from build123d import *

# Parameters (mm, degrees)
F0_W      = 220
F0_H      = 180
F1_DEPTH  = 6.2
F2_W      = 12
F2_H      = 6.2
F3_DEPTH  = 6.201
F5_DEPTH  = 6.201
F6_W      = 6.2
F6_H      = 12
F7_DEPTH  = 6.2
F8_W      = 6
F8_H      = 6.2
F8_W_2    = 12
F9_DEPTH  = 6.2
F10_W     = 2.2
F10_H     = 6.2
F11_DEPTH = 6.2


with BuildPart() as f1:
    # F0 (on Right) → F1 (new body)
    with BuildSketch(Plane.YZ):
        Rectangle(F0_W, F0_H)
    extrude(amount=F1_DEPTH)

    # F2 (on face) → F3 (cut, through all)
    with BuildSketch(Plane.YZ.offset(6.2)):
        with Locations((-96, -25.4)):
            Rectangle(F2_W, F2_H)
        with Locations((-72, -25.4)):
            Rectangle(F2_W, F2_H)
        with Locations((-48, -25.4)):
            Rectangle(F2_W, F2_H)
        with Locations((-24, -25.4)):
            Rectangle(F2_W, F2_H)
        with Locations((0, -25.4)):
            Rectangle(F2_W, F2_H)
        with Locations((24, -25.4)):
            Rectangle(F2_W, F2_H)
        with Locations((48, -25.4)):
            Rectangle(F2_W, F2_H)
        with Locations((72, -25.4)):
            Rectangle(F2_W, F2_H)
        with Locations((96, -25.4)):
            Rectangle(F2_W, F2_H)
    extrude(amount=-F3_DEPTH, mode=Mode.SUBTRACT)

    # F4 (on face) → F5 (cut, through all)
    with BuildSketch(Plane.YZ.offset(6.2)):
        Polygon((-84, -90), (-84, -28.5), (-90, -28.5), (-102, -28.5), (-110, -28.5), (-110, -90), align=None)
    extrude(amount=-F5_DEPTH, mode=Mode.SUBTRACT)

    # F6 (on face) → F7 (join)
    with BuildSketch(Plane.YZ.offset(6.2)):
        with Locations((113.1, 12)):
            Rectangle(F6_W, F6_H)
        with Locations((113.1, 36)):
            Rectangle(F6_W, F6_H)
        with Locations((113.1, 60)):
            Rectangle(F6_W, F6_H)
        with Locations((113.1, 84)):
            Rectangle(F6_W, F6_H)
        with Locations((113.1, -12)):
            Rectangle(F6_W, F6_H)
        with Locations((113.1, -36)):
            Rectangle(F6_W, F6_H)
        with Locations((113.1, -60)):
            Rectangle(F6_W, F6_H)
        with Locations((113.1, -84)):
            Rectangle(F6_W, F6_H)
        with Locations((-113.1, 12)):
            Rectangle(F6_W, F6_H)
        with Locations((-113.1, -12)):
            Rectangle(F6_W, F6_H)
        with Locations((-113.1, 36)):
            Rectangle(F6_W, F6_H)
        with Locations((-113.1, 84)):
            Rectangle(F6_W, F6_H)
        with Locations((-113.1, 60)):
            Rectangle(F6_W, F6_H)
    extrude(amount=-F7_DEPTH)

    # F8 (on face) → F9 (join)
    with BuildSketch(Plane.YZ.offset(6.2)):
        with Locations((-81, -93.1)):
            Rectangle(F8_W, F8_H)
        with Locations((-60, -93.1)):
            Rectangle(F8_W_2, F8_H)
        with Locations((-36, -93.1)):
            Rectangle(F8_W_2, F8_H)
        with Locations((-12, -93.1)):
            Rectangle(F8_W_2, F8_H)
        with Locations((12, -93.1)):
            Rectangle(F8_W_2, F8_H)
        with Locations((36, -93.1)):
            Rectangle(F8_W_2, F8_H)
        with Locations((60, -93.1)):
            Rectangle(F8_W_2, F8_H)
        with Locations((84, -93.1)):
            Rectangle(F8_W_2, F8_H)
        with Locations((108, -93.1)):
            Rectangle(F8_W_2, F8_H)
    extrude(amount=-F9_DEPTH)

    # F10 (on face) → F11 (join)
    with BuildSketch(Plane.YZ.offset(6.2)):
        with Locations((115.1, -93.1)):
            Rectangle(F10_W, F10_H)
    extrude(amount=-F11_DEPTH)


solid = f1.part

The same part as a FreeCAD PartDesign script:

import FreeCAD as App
import Part
import Sketcher
from FreeCAD import Vector


def add_polygon(sketch, points):
    """Adds a closed chain of lines whose ends are joined by coincident constraints."""
    first, n = sketch.GeometryCount, len(points)
    for a, b in zip(points, points[1:] + points[:1]):
        sketch.addGeometry(Part.LineSegment(App.Vector(*a, 0), App.Vector(*b, 0)), False)
    for i in range(n):
        sketch.addConstraint(Sketcher.Constraint("Coincident", first + i, 2, first + (i + 1) % n, 1))

doc = App.newDocument("Part")
params = doc.addObject("Spreadsheet::Sheet", "Params")
for row, (alias, value) in enumerate([
    ("sketch1_width", "220 mm"),
    ("sketch1_height", "180 mm"),
    ("pad1_length", "6.2 mm"),
    ("sketch2_width", "12 mm"),
    ("sketch2_height", "6.2 mm"),
    ("sketch3_width", "26 mm"),
    ("sketch3_height", "61.5 mm"),
    ("sketch4_height", "12 mm"),
    ("sketch4_width", "6.2 mm"),
    ("pad2_length", "6.2 mm"),
    ("sketch5_width", "6 mm"),
    ("sketch5_width2", "12 mm"),
    ("sketch5_height", "6.2 mm"),
    ("pad3_length", "6.2 mm"),
    ("sketch6_width", "2.2 mm"),
    ("sketch6_height", "6.2 mm"),
    ("pad4_length", "6.2 mm"),
], start=1):
    params.set(f"A{row}", alias)
    params.set(f"B{row}", "=" + value)
    params.setAlias(f"B{row}", alias)

body = doc.addObject("PartDesign::Body", "Body")

# Sketch on YZ plane
sketch1 = body.newObject("Sketcher::SketchObject", "Sketch")
sketch1.AttachmentSupport = (doc.getObject("YZ_Plane"), [""])
sketch1.MapMode = "FlatFace"
add_polygon(sketch1, [(-110, 90), (-110, -90), (110, -90), (110, 90)])  # lines 0-3
sketch1.addConstraint([
    Sketcher.Constraint("Vertical", 0),
    Sketcher.Constraint("Horizontal", 1),
    Sketcher.Constraint("Vertical", 2),
    Sketcher.Constraint("Horizontal", 3),
    Sketcher.Constraint("Symmetric", 0, 2, 2, 2, -1, 1),
    Sketcher.Constraint("DistanceX", 1, 1, 1, 2, 220.0),
    Sketcher.Constraint("DistanceY", 0, 2, 0, 1, 180.0),
])
sketch1.setExpression("Constraints[9]", "Params.sketch1_width")
sketch1.setExpression("Constraints[10]", "Params.sketch1_height")
pad1 = body.newObject("PartDesign::Pad", "Pad")
pad1.Profile = sketch1
pad1.setExpression("Length", "Params.pad1_length")

# Sketch on YZ plane
sketch2 = body.newObject("Sketcher::SketchObject", "Sketch001")
sketch2.AttachmentSupport = (doc.getObject("YZ_Plane"), [""])
sketch2.MapMode = "FlatFace"
sketch2.AttachmentOffset = App.Placement(Vector(0, 0, 6.2), App.Rotation())
add_polygon(sketch2, [(-102, -22), (-102, -28), (-90, -28), (-90, -22)])  # lines 0-3
add_polygon(sketch2, [(-78, -22), (-78, -28), (-66, -28), (-66, -22)])  # lines 4-7
add_polygon(sketch2, [(-54, -22), (-54, -28), (-42, -28), (-42, -22)])  # lines 8-11
add_polygon(sketch2, [(-30, -22), (-30, -28), (-18, -28), (-18, -22)])  # lines 12-15
add_polygon(sketch2, [(-6, -22), (-6, -28), (6, -28), (6, -22)])  # lines 16-19
add_polygon(sketch2, [(18, -22), (18, -28), (30, -28), (30, -22)])  # lines 20-23
add_polygon(sketch2, [(42, -22), (42, -28), (54, -28), (54, -22)])  # lines 24-27
add_polygon(sketch2, [(66, -22), (66, -28), (78, -28), (78, -22)])  # lines 28-31
add_polygon(sketch2, [(90, -22), (90, -28), (102, -28), (102, -22)])  # lines 32-35
sketch2.addConstraint([
    Sketcher.Constraint("Vertical", 0),
    Sketcher.Constraint("Horizontal", 1),
    Sketcher.Constraint("Vertical", 2),
    Sketcher.Constraint("Horizontal", 3),
    Sketcher.Constraint("Vertical", 4),
    Sketcher.Constraint("Horizontal", 5),
    Sketcher.Constraint("Vertical", 6),
    Sketcher.Constraint("Horizontal", 7),
    Sketcher.Constraint("Vertical", 8),
    Sketcher.Constraint("Horizontal", 9),
    Sketcher.Constraint("Vertical", 10),
    Sketcher.Constraint("Horizontal", 11),
    Sketcher.Constraint("Vertical", 12),
    Sketcher.Constraint("Horizontal", 13),
    Sketcher.Constraint("Vertical", 14),
    Sketcher.Constraint("Horizontal", 15),
    Sketcher.Constraint("Vertical", 16),
    Sketcher.Constraint("Horizontal", 17),
    Sketcher.Constraint("Vertical", 18),
    Sketcher.Constraint("Horizontal", 19),
    Sketcher.Constraint("Vertical", 20),
    Sketcher.Constraint("Horizontal", 21),
    Sketcher.Constraint("Vertical", 22),
    Sketcher.Constraint("Horizontal", 23),
    Sketcher.Constraint("Vertical", 24),
    Sketcher.Constraint("Horizontal", 25),
    Sketcher.Constraint("Vertical", 26),
    Sketcher.Constraint("Horizontal", 27),
    Sketcher.Constraint("Vertical", 28),
    Sketcher.Constraint("Horizontal", 29),
    Sketcher.Constraint("Vertical", 30),
    Sketcher.Constraint("Horizontal", 31),
    Sketcher.Constraint("Vertical", 32),
    Sketcher.Constraint("Horizontal", 33),
    Sketcher.Constraint("Vertical", 34),
    Sketcher.Constraint("Horizontal", 35),
    Sketcher.Constraint("Symmetric", 13, 2, 20, 2, -2),
    Sketcher.Constraint("Symmetric", 15, 2, 22, 2, -2),
    Sketcher.Constraint("Symmetric", 9, 2, 24, 2, -2),
    Sketcher.Constraint("Symmetric", 11, 2, 26, 2, -2),
    Sketcher.Constraint("Symmetric", 5, 2, 28, 2, -2),
    Sketcher.Constraint("Symmetric", 7, 2, 30, 2, -2),
    Sketcher.Constraint("Symmetric", 1, 2, 32, 2, -2),
    Sketcher.Constraint("Symmetric", 3, 2, 34, 2, -2),
    Sketcher.Constraint("Horizontal", 1, 2, 4, 2),
    Sketcher.Constraint("Horizontal", 3, 2, 6, 2),
    Sketcher.Constraint("Horizontal", 5, 2, 8, 2),
    Sketcher.Constraint("Horizontal", 7, 2, 10, 2),
    Sketcher.Constraint("Horizontal", 9, 2, 12, 2),
    Sketcher.Constraint("Horizontal", 11, 2, 14, 2),
    Sketcher.Constraint("Horizontal", 13, 2, 16, 2),
    Sketcher.Constraint("Horizontal", 15, 2, 18, 2),
    Sketcher.Constraint("Equal", 3, 5),
    Sketcher.Constraint("Equal", 7, 9),
    Sketcher.Constraint("Equal", 11, 13),
    Sketcher.Constraint("Equal", 15, 17),
    Sketcher.Constraint("DistanceX", 1, 1, 1, 2, 12.0),
    Sketcher.Constraint("DistanceY", 0, 2, 0, 1, 6.2),
    Sketcher.Constraint("DistanceX", 0, 2, -1, 1, 102.0),
    Sketcher.Constraint("DistanceX", 4, 2, -1, 1, 78.0),
    Sketcher.Constraint("DistanceX", 8, 2, -1, 1, 54.0),
    Sketcher.Constraint("DistanceX", 12, 2, -1, 1, 30.0),
    Sketcher.Constraint("DistanceX", 16, 2, -1, 1, 6.0),
    Sketcher.Constraint("DistanceY", 0, 2, -1, 1, 28.5),
])
sketch2.setExpression("Constraints[92]", "Params.sketch2_width")
sketch2.setExpression("Constraints[93]", "Params.sketch2_height")
pocket1 = body.newObject("PartDesign::Pocket", "Pocket")
pocket1.Profile = sketch2
pocket1.Type = "ThroughAll"

# Sketch on YZ plane
sketch3 = body.newObject("Sketcher::SketchObject", "Sketch002")
sketch3.AttachmentSupport = (doc.getObject("YZ_Plane"), [""])
sketch3.MapMode = "FlatFace"
sketch3.AttachmentOffset = App.Placement(Vector(0, 0, 6.2), App.Rotation())
add_polygon(sketch3, [(-84, -90), (-84, -28), (-110, -28), (-110, -90)])  # lines 0-3
sketch3.addConstraint([
    Sketcher.Constraint("Vertical", 0),
    Sketcher.Constraint("Horizontal", 1),
    Sketcher.Constraint("Vertical", 2),
    Sketcher.Constraint("Horizontal", 3),
    Sketcher.Constraint("DistanceX", 1, 2, 1, 1, 26.0),
    Sketcher.Constraint("DistanceY", 0, 1, 0, 2, 61.5),
    Sketcher.Constraint("DistanceX", 0, 2, -1, 1, 84.0),
    Sketcher.Constraint("DistanceY", 2, 2, -1, 1, 90.0),
])
sketch3.setExpression("Constraints[8]", "Params.sketch3_width")
sketch3.setExpression("Constraints[9]", "Params.sketch3_height")
pocket2 = body.newObject("PartDesign::Pocket", "Pocket001")
pocket2.Profile = sketch3
pocket2.Type = "ThroughAll"

# Sketch on YZ plane
sketch4 = body.newObject("Sketcher::SketchObject", "Sketch003")
sketch4.AttachmentSupport = (doc.getObject("YZ_Plane"), [""])
sketch4.MapMode = "FlatFace"
sketch4.AttachmentOffset = App.Placement(Vector(0, 0, 6.2), App.Rotation())
add_polygon(sketch4, [(110, 18), (110, 6), (116, 6), (116, 18)])  # lines 0-3
add_polygon(sketch4, [(110, 42), (110, 30), (116, 30), (116, 42)])  # lines 4-7
add_polygon(sketch4, [(110, 66), (110, 54), (116, 54), (116, 66)])  # lines 8-11
add_polygon(sketch4, [(110, 90), (110, 78), (116, 78), (116, 90)])  # lines 12-15
add_polygon(sketch4, [(110, -6), (110, -18), (116, -18), (116, -6)])  # lines 16-19
add_polygon(sketch4, [(110, -30), (110, -42), (116, -42), (116, -30)])  # lines 20-23
add_polygon(sketch4, [(110, -54), (110, -66), (116, -66), (116, -54)])  # lines 24-27
add_polygon(sketch4, [(110, -78), (110, -90), (116, -90), (116, -78)])  # lines 28-31
add_polygon(sketch4, [(-116, 18), (-116, 6), (-110, 6), (-110, 18)])  # lines 32-35
add_polygon(sketch4, [(-116, -6), (-116, -18), (-110, -18), (-110, -6)])  # lines 36-39
add_polygon(sketch4, [(-116, 42), (-116, 30), (-110, 30), (-110, 42)])  # lines 40-43
add_polygon(sketch4, [(-116, 90), (-116, 78), (-110, 78), (-110, 90)])  # lines 44-47
add_polygon(sketch4, [(-116, 66), (-116, 54), (-110, 54), (-110, 66)])  # lines 48-51
sketch4.addConstraint([
    Sketcher.Constraint("Vertical", 0),
    Sketcher.Constraint("Horizontal", 1),
    Sketcher.Constraint("Vertical", 2),
    Sketcher.Constraint("Horizontal", 3),
    Sketcher.Constraint("Vertical", 4),
    Sketcher.Constraint("Horizontal", 5),
    Sketcher.Constraint("Vertical", 6),
    Sketcher.Constraint("Horizontal", 7),
    Sketcher.Constraint("Vertical", 8),
    Sketcher.Constraint("Horizontal", 9),
    Sketcher.Constraint("Vertical", 10),
    Sketcher.Constraint("Horizontal", 11),
    Sketcher.Constraint("Vertical", 12),
    Sketcher.Constraint("Horizontal", 13),
    Sketcher.Constraint("Vertical", 14),
    Sketcher.Constraint("Horizontal", 15),
    Sketcher.Constraint("Vertical", 16),
    Sketcher.Constraint("Horizontal", 17),
    Sketcher.Constraint("Vertical", 18),
    Sketcher.Constraint("Horizontal", 19),
    Sketcher.Constraint("Vertical", 20),
    Sketcher.Constraint("Horizontal", 21),
    Sketcher.Constraint("Vertical", 22),
    Sketcher.Constraint("Horizontal", 23),
    Sketcher.Constraint("Vertical", 24),
    Sketcher.Constraint("Horizontal", 25),
    Sketcher.Constraint("Vertical", 26),
    Sketcher.Constraint("Horizontal", 27),
    Sketcher.Constraint("Vertical", 28),
    Sketcher.Constraint("Horizontal", 29),
    Sketcher.Constraint("Vertical", 30),
    Sketcher.Constraint("Horizontal", 31),
    Sketcher.Constraint("Vertical", 32),
    Sketcher.Constraint("Horizontal", 33),
    Sketcher.Constraint("Vertical", 34),
    Sketcher.Constraint("Horizontal", 35),
    Sketcher.Constraint("Vertical", 36),
    Sketcher.Constraint("Horizontal", 37),
    Sketcher.Constraint("Vertical", 38),
    Sketcher.Constraint("Horizontal", 39),
    Sketcher.Constraint("Vertical", 40),
    Sketcher.Constraint("Horizontal", 41),
    Sketcher.Constraint("Vertical", 42),
    Sketcher.Constraint("Horizontal", 43),
    Sketcher.Constraint("Vertical", 44),
    Sketcher.Constraint("Horizontal", 45),
    Sketcher.Constraint("Vertical", 46),
    Sketcher.Constraint("Horizontal", 47),
    Sketcher.Constraint("Vertical", 48),
    Sketcher.Constraint("Horizontal", 49),
    Sketcher.Constraint("Vertical", 50),
    Sketcher.Constraint("Horizontal", 51),
    Sketcher.Constraint("Symmetric", 18, 2, 32, 2, -1, 1),
    Sketcher.Constraint("Symmetric", 16, 2, 34, 2, -1, 1),
    Sketcher.Constraint("Symmetric", 2, 2, 36, 2, -1, 1),
    Sketcher.Constraint("Symmetric", 0, 2, 38, 2, -1, 1),
    Sketcher.Constraint("Symmetric", 22, 2, 40, 2, -1, 1),
    Sketcher.Constraint("Symmetric", 20, 2, 42, 2, -1, 1),
    Sketcher.Constraint("Symmetric", 30, 2, 44, 2, -1, 1),
    Sketcher.Constraint("Symmetric", 28, 2, 46, 2, -1, 1),
    Sketcher.Constraint("Symmetric", 26, 2, 48, 2, -1, 1),
    Sketcher.Constraint("Symmetric", 24, 2, 50, 2, -1, 1),
    Sketcher.Constraint("Symmetric", 1, 2, 32, 2, -2),
    Sketcher.Constraint("Symmetric", 3, 2, 34, 2, -2),
    Sketcher.Constraint("Symmetric", 5, 2, 40, 2, -2),
    Sketcher.Constraint("Symmetric", 7, 2, 42, 2, -2),
    Sketcher.Constraint("Symmetric", 13, 2, 44, 2, -2),
    Sketcher.Constraint("Symmetric", 15, 2, 46, 2, -2),
    Sketcher.Constraint("Symmetric", 9, 2, 48, 2, -2),
    Sketcher.Constraint("Symmetric", 11, 2, 50, 2, -2),
    Sketcher.Constraint("Vertical", 3, 2, 4, 2),
    Sketcher.Constraint("Vertical", 2, 2, 5, 2),
    Sketcher.Constraint("Vertical", 7, 2, 8, 2),
    Sketcher.Constraint("Vertical", 6, 2, 9, 2),
    Sketcher.Constraint("Vertical", 11, 2, 12, 2),
    Sketcher.Constraint("Vertical", 10, 2, 13, 2),
    Sketcher.Constraint("Equal", 2, 4),
    Sketcher.Constraint("Equal", 6, 8),
    Sketcher.Constraint("Equal", 10, 12),
    Sketcher.Constraint("DistanceY", 0, 2, 0, 1, 12.0),
    Sketcher.Constraint("DistanceX", 1, 1, 1, 2, 6.2),
    Sketcher.Constraint("DistanceX", -1, 1, 0, 2, 110.0),
    Sketcher.Constraint("DistanceY", -1, 1, 0, 2, 6.0),
    Sketcher.Constraint("DistanceY", -1, 1, 4, 2, 30.0),
    Sketcher.Constraint("DistanceY", -1, 1, 8, 2, 54.0),
    Sketcher.Constraint("DistanceY", -1, 1, 12, 2, 78.0),
])
sketch4.setExpression("Constraints[131]", "Params.sketch4_height")
sketch4.setExpression("Constraints[132]", "Params.sketch4_width")
pad2 = body.newObject("PartDesign::Pad", "Pad001")
pad2.Profile = sketch4
pad2.setExpression("Length", "Params.pad2_length")
pad2.Reversed = True

# Sketch on YZ plane
sketch5 = body.newObject("Sketcher::SketchObject", "Sketch004")
sketch5.AttachmentSupport = (doc.getObject("YZ_Plane"), [""])
sketch5.MapMode = "FlatFace"
sketch5.AttachmentOffset = App.Placement(Vector(0, 0, 6.2), App.Rotation())
add_polygon(sketch5, [(-84, -90), (-84, -96), (-78, -96), (-78, -90)])  # lines 0-3
add_polygon(sketch5, [(-66, -90), (-66, -96), (-54, -96), (-54, -90)])  # lines 4-7
add_polygon(sketch5, [(-42, -90), (-42, -96), (-30, -96), (-30, -90)])  # lines 8-11
add_polygon(sketch5, [(-18, -90), (-18, -96), (-6, -96), (-6, -90)])  # lines 12-15
add_polygon(sketch5, [(6, -90), (6, -96), (18, -96), (18, -90)])  # lines 16-19
add_polygon(sketch5, [(30, -90), (30, -96), (42, -96), (42, -90)])  # lines 20-23
add_polygon(sketch5, [(54, -90), (54, -96), (66, -96), (66, -90)])  # lines 24-27
add_polygon(sketch5, [(78, -90), (78, -96), (90, -96), (90, -90)])  # lines 28-31
add_polygon(sketch5, [(102, -90), (102, -96), (114, -96), (114, -90)])  # lines 32-35
sketch5.addConstraint([
    Sketcher.Constraint("Vertical", 0),
    Sketcher.Constraint("Horizontal", 1),
    Sketcher.Constraint("Vertical", 2),
    Sketcher.Constraint("Horizontal", 3),
    Sketcher.Constraint("Vertical", 4),
    Sketcher.Constraint("Horizontal", 5),
    Sketcher.Constraint("Vertical", 6),
    Sketcher.Constraint("Horizontal", 7),
    Sketcher.Constraint("Vertical", 8),
    Sketcher.Constraint("Horizontal", 9),
    Sketcher.Constraint("Vertical", 10),
    Sketcher.Constraint("Horizontal", 11),
    Sketcher.Constraint("Vertical", 12),
    Sketcher.Constraint("Horizontal", 13),
    Sketcher.Constraint("Vertical", 14),
    Sketcher.Constraint("Horizontal", 15),
    Sketcher.Constraint("Vertical", 16),
    Sketcher.Constraint("Horizontal", 17),
    Sketcher.Constraint("Vertical", 18),
    Sketcher.Constraint("Horizontal", 19),
    Sketcher.Constraint("Vertical", 20),
    Sketcher.Constraint("Horizontal", 21),
    Sketcher.Constraint("Vertical", 22),
    Sketcher.Constraint("Horizontal", 23),
    Sketcher.Constraint("Vertical", 24),
    Sketcher.Constraint("Horizontal", 25),
    Sketcher.Constraint("Vertical", 26),
    Sketcher.Constraint("Horizontal", 27),
    Sketcher.Constraint("Vertical", 28),
    Sketcher.Constraint("Horizontal", 29),
    Sketcher.Constraint("Vertical", 30),
    Sketcher.Constraint("Horizontal", 31),
    Sketcher.Constraint("Vertical", 32),
    Sketcher.Constraint("Horizontal", 33),
    Sketcher.Constraint("Vertical", 34),
    Sketcher.Constraint("Horizontal", 35),
    Sketcher.Constraint("Symmetric", 13, 2, 16, 2, -2),
    Sketcher.Constraint("Symmetric", 15, 2, 18, 2, -2),
    Sketcher.Constraint("Symmetric", 9, 2, 20, 2, -2),
    Sketcher.Constraint("Symmetric", 11, 2, 22, 2, -2),
    Sketcher.Constraint("Symmetric", 5, 2, 24, 2, -2),
    Sketcher.Constraint("Symmetric", 7, 2, 26, 2, -2),
    Sketcher.Constraint("Symmetric", 1, 2, 28, 2, -2),
    Sketcher.Constraint("Horizontal", 1, 2, 4, 2),
    Sketcher.Constraint("Horizontal", 3, 2, 6, 2),
    Sketcher.Constraint("Horizontal", 5, 2, 8, 2),
    Sketcher.Constraint("Horizontal", 7, 2, 10, 2),
    Sketcher.Constraint("Horizontal", 9, 2, 12, 2),
    Sketcher.Constraint("Horizontal", 11, 2, 14, 2),
    Sketcher.Constraint("Horizontal", 27, 2, 30, 2),
    Sketcher.Constraint("Horizontal", 29, 2, 32, 2),
    Sketcher.Constraint("Horizontal", 31, 2, 34, 2),
    Sketcher.Constraint("Equal", 7, 9),
    Sketcher.Constraint("Equal", 11, 13),
    Sketcher.Constraint("Equal", 27, 29),
    Sketcher.Constraint("Equal", 31, 33),
    Sketcher.Constraint("DistanceX", 1, 1, 1, 2, 6.0),
    Sketcher.Constraint("DistanceX", 5, 1, 5, 2, 12.0),
    Sketcher.Constraint("DistanceY", 0, 2, 0, 1, 6.2),
    Sketcher.Constraint("DistanceX", 0, 2, -1, 1, 84.0),
    Sketcher.Constraint("DistanceY", 2, 2, -1, 1, 90.0),
    Sketcher.Constraint("DistanceX", 4, 2, -1, 1, 66.0),
    Sketcher.Constraint("DistanceX", 8, 2, -1, 1, 42.0),
    Sketcher.Constraint("DistanceX", 12, 2, -1, 1, 18.0),
    Sketcher.Constraint("DistanceX", -1, 1, 32, 2, 102.0),
])
sketch5.setExpression("Constraints[92]", "Params.sketch5_width")
sketch5.setExpression("Constraints[93]", "Params.sketch5_width2")
sketch5.setExpression("Constraints[94]", "Params.sketch5_height")
pad3 = body.newObject("PartDesign::Pad", "Pad002")
pad3.Profile = sketch5
pad3.setExpression("Length", "Params.pad3_length")
pad3.Reversed = True

# Sketch on YZ plane
sketch6 = body.newObject("Sketcher::SketchObject", "Sketch005")
sketch6.AttachmentSupport = (doc.getObject("YZ_Plane"), [""])
sketch6.MapMode = "FlatFace"
sketch6.AttachmentOffset = App.Placement(Vector(0, 0, 6.2), App.Rotation())
add_polygon(sketch6, [(114, -90), (114, -96.2), (116.2, -96.2), (116.2, -90)])  # lines 0-3
sketch6.addConstraint([
    Sketcher.Constraint("Vertical", 0),
    Sketcher.Constraint("Horizontal", 1),
    Sketcher.Constraint("Vertical", 2),
    Sketcher.Constraint("Horizontal", 3),
    Sketcher.Constraint("DistanceX", 1, 1, 1, 2, 2.2),
    Sketcher.Constraint("DistanceY", 0, 2, 0, 1, 6.2),
    Sketcher.Constraint("DistanceX", -1, 1, 0, 2, 114.0),
    Sketcher.Constraint("DistanceY", 2, 2, -1, 1, 90.0),
])
sketch6.setExpression("Constraints[8]", "Params.sketch6_width")
sketch6.setExpression("Constraints[9]", "Params.sketch6_height")
pad4 = body.newObject("PartDesign::Pad", "Pad003")
pad4.Profile = sketch6
pad4.setExpression("Length", "Params.pad4_length")
pad4.Reversed = True

doc.recompute()
